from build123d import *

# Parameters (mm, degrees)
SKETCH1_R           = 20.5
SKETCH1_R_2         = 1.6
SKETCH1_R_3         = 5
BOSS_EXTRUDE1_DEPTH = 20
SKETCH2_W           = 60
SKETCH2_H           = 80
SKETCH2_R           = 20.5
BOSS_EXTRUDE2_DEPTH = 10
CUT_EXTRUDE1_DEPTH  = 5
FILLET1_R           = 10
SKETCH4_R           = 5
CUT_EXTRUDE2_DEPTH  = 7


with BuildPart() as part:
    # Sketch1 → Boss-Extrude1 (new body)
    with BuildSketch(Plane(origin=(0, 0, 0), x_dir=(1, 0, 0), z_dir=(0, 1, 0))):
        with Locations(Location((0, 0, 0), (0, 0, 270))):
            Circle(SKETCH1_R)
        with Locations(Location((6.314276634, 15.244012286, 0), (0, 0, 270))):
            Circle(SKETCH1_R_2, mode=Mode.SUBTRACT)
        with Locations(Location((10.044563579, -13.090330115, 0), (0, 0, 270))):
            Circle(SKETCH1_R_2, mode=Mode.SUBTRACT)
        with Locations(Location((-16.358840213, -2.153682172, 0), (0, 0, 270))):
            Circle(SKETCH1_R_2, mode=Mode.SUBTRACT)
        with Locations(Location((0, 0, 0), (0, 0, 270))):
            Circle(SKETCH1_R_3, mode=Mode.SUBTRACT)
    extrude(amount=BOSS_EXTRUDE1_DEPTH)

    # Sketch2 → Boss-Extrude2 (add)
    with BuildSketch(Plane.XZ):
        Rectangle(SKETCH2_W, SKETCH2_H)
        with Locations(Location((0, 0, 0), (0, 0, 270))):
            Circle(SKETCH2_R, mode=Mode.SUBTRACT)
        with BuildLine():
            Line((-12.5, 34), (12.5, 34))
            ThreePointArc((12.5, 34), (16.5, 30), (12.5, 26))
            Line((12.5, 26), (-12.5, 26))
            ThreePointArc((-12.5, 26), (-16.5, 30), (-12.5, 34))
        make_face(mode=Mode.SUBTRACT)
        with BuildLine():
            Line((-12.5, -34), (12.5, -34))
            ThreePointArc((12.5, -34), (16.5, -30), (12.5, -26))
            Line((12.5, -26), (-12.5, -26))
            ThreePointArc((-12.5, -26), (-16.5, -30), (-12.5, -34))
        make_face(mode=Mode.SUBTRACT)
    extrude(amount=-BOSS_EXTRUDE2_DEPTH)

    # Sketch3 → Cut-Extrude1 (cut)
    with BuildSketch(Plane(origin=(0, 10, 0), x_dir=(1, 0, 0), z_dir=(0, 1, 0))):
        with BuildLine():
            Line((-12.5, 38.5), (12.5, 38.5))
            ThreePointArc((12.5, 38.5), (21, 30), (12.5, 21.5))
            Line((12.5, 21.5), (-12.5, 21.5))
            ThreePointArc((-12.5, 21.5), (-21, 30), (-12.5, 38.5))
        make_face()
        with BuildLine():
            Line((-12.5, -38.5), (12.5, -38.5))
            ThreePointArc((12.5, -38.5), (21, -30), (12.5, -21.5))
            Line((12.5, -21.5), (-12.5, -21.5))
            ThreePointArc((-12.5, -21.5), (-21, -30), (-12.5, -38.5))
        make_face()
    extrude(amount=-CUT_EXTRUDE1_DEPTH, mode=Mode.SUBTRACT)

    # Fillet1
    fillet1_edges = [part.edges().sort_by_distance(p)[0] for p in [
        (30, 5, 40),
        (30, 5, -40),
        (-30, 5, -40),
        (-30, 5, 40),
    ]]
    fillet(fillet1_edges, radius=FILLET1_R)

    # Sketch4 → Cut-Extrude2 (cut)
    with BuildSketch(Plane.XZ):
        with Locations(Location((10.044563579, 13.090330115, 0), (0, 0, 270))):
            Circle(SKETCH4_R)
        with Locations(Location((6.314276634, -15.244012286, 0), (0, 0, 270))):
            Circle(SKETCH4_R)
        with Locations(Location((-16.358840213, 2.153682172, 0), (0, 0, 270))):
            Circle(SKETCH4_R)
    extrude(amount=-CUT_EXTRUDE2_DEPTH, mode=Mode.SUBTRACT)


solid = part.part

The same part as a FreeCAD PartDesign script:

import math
import FreeCAD as App
import Part
import Sketcher
from FreeCAD import Vector


def edges_at(feature, points):
    """Names of the edges that pass closest to the given points."""
    edges = feature.Shape.Edges
    near = lambda p: min(range(len(edges)), key=lambda i: edges[i].distToShape(Part.Vertex(*p))[0])
    return sorted({f"Edge{near(p) + 1}" for p in points})

doc = App.newDocument("Part")
body = doc.addObject("PartDesign::Body", "Body")

# Sketch on XZ plane
sketch1 = body.newObject("Sketcher::SketchObject", "Sketch")
sketch1.AttachmentSupport = (doc.getObject("XZ_Plane"), [""])
sketch1.MapMode = "FlatFace"
sketch1.addGeometry(Part.Circle(Vector(0, 0, 0), Vector(0, 0, 1), 20.5), False)
sketch1.addGeometry(Part.Circle(Vector(-16.35884, 2.153682, 0), Vector(0, 0, 1), 1.6), False)
sketch1.addGeometry(Part.Circle(Vector(6.314277, -15.244012, 0), Vector(0, 0, 1), 1.6), False)
sketch1.addGeometry(Part.Circle(Vector(0, 0, 0), Vector(0, 0, 1), 5), False)
sketch1.addGeometry(Part.Circle(Vector(10.044564, 13.09033, 0), Vector(0, 0, 1), 1.6), False)
sketch1.addConstraint(Sketcher.Constraint("Coincident", 0, 3, -1, 1))
sketch1.addConstraint(Sketcher.Constraint("Coincident", 3, 3, -1, 1))
sketch1.addConstraint(Sketcher.Constraint("Equal", 1, 2))
sketch1.addConstraint(Sketcher.Constraint("Equal", 2, 4))
sketch1.addConstraint(Sketcher.Constraint("Diameter", 0, 41.0))
sketch1.addConstraint(Sketcher.Constraint("Diameter", 3, 10.0))
sketch1.addConstraint(Sketcher.Constraint("Diameter", 1, 3.2))
sketch1.addConstraint(Sketcher.Constraint("DistanceX", 1, 3, -1, 1, 16.35884))
sketch1.addConstraint(Sketcher.Constraint("DistanceY", -1, 1, 4, 3, 13.09033))
sketch1.addConstraint(Sketcher.Constraint("DistanceY", -1, 1, 1, 3, 2.153682))
sketch1.addConstraint(Sketcher.Constraint("DistanceX", -1, 1, 2, 3, 6.314277))
sketch1.addConstraint(Sketcher.Constraint("DistanceY", 2, 3, -1, 1, 15.244012))
sketch1.addConstraint(Sketcher.Constraint("DistanceX", -1, 1, 4, 3, 10.044564))
pad1 = body.newObject("PartDesign::Pad", "Pad")
pad1.Profile = sketch1
pad1.Length = 20
pad1.Reversed = True

# Sketch on XZ plane
sketch2 = body.newObject("Sketcher::SketchObject", "Sketch001")
sketch2.AttachmentSupport = (doc.getObject("XZ_Plane"), [""])
sketch2.MapMode = "FlatFace"
sketch2.addGeometry(Part.LineSegment(Vector(-30, 40, 0), Vector(-30, -40, 0)), False)
sketch2.addGeometry(Part.LineSegment(Vector(-30, -40, 0), Vector(30, -40, 0)), False)
sketch2.addGeometry(Part.LineSegment(Vector(30, -40, 0), Vector(30, 40, 0)), False)
sketch2.addGeometry(Part.LineSegment(Vector(30, 40, 0), Vector(-30, 40, 0)), False)
sketch2.addGeometry(Part.LineSegment(Vector(12.5, -34, 0), Vector(-12.5, -34, 0)), False)
sketch2.addGeometry(Part.ArcOfCircle(Part.Circle(Vector(-12.5, -30, 0), Vector(0, 0, 1), 4), math.radians(90), math.radians(270)), False)
sketch2.addGeometry(Part.LineSegment(Vector(-12.5, -26, 0), Vector(12.5, -26, 0)), False)
sketch2.addGeometry(Part.ArcOfCircle(Part.Circle(Vector(12.5, -30, 0), Vector(0, 0, 1), 4), math.radians(-90), math.radians(90)), False)
sketch2.addGeometry(Part.Circle(Vector(0, 0, 0), Vector(0, 0, 1), 20.5), False)
sketch2.addGeometry(Part.ArcOfCircle(Part.Circle(Vector(-12.5, 30, 0), Vector(0, 0, 1), 4), math.radians(90), math.radians(270)), False)
sketch2.addGeometry(Part.LineSegment(Vector(-12.5, 34, 0), Vector(12.5, 34, 0)), False)
sketch2.addGeometry(Part.ArcOfCircle(Part.Circle(Vector(12.5, 30, 0), Vector(0, 0, 1), 4), math.radians(-90), math.radians(90)), False)
sketch2.addGeometry(Part.LineSegment(Vector(12.5, 26, 0), Vector(-12.5, 26, 0)), False)
sketch2.addConstraint(Sketcher.Constraint("Coincident", 0, 2, 1, 1))
sketch2.addConstraint(Sketcher.Constraint("Coincident", 1, 2, 2, 1))
sketch2.addConstraint(Sketcher.Constraint("Coincident", 2, 2, 3, 1))
sketch2.addConstraint(Sketcher.Constraint("Coincident", 3, 2, 0, 1))
sketch2.addConstraint(Sketcher.Constraint("Tangent", 4, 2, 5, 2))
sketch2.addConstraint(Sketcher.Constraint("Tangent", 5, 1, 6, 1))
sketch2.addConstraint(Sketcher.Constraint("Tangent", 6, 2, 7, 2))
sketch2.addConstraint(Sketcher.Constraint("Tangent", 7, 1, 4, 1))
sketch2.addConstraint(Sketcher.Constraint("Tangent", 9, 1, 10, 1))
sketch2.addConstraint(Sketcher.Constraint("Tangent", 10, 2, 11, 2))
sketch2.addConstraint(Sketcher.Constraint("Tangent", 11, 1, 12, 1))
sketch2.addConstraint(Sketcher.Constraint("Tangent", 12, 2, 9, 2))
sketch2.addConstraint(Sketcher.Constraint("Vertical", 0))
sketch2.addConstraint(Sketcher.Constraint("Horizontal", 1))
sketch2.addConstraint(Sketcher.Constraint("Vertical", 2))
sketch2.addConstraint(Sketcher.Constraint("Horizontal", 3))
sketch2.addConstraint(Sketcher.Constraint("Horizontal", 4))
sketch2.addConstraint(Sketcher.Constraint("Horizontal", 6))
sketch2.addConstraint(Sketcher.Constraint("Horizontal", 10))
sketch2.addConstraint(Sketcher.Constraint("Horizontal", 12))
sketch2.addConstraint(Sketcher.Constraint("Coincident", 8, 3, -1, 1))
sketch2.addConstraint(Sketcher.Constraint("Equal", 7, 9))
sketch2.addConstraint(Sketcher.Constraint("Symmetric", 7, 3, 9, 3, -1, 1))
sketch2.addConstraint(Sketcher.Constraint("Symmetric", 0, 2, 2, 2, -1, 1))
sketch2.addConstraint(Sketcher.Constraint("Vertical", 5, 3, 9, 3))
sketch2.addConstraint(Sketcher.Constraint("Vertical", 7, 3, 11, 3))
sketch2.addConstraint(Sketcher.Constraint("Diameter", 8, 41.0))
sketch2.addConstraint(Sketcher.Constraint("Radius", 5, 4.0))
sketch2.addConstraint(Sketcher.Constraint("DistanceX", 1, 1, 1, 2, 60.0))
sketch2.addConstraint(Sketcher.Constraint("DistanceX", 4, 2, 4, 1, 25.0))
sketch2.addConstraint(Sketcher.Constraint("DistanceY", 0, 2, 0, 1, 80.0))
sketch2.addConstraint(Sketcher.Constraint("DistanceY", 5, 3, -1, 1, 30.0))
pad2 = body.newObject("PartDesign::Pad", "Pad001")
pad2.Profile = sketch2
pad2.Length = 10
pad2.Reversed = True

# Sketch on XZ plane
sketch3 = body.newObject("Sketcher::SketchObject", "Sketch002")
sketch3.AttachmentSupport = (doc.getObject("XZ_Plane"), [""])
sketch3.MapMode = "FlatFace"
sketch3.AttachmentOffset = App.Placement(Vector(0, 0, -10), App.Rotation())
sketch3.addGeometry(Part.LineSegment(Vector(12.5, -38.5, 0), Vector(-12.5, -38.5, 0)), False)
sketch3.addGeometry(Part.ArcOfCircle(Part.Circle(Vector(-12.5, -30, 0), Vector(0, 0, 1), 8.5), math.radians(90), math.radians(270)), False)
sketch3.addGeometry(Part.LineSegment(Vector(-12.5, -21.5, 0), Vector(12.5, -21.5, 0)), False)
sketch3.addGeometry(Part.ArcOfCircle(Part.Circle(Vector(12.5, -30, 0), Vector(0, 0, 1), 8.5), math.radians(-90), math.radians(90)), False)
sketch3.addGeometry(Part.LineSegment(Vector(-12.5, 38.5, 0), Vector(12.5, 38.5, 0)), False)
sketch3.addGeometry(Part.ArcOfCircle(Part.Circle(Vector(12.5, 30, 0), Vector(0, 0, 1), 8.5), math.radians(-90), math.radians(90)), False)
sketch3.addGeometry(Part.LineSegment(Vector(12.5, 21.5, 0), Vector(-12.5, 21.5, 0)), False)
sketch3.addGeometry(Part.ArcOfCircle(Part.Circle(Vector(-12.5, 30, 0), Vector(0, 0, 1), 8.5), math.radians(90), math.radians(270)), False)
sketch3.addConstraint(Sketcher.Constraint("Tangent", 0, 2, 1, 2))
sketch3.addConstraint(Sketcher.Constraint("Tangent", 1, 1, 2, 1))
sketch3.addConstraint(Sketcher.Constraint("Tangent", 2, 2, 3, 2))
sketch3.addConstraint(Sketcher.Constraint("Tangent", 3, 1, 0, 1))
sketch3.addConstraint(Sketcher.Constraint("Tangent", 4, 2, 5, 2))
sketch3.addConstraint(Sketcher.Constraint("Tangent", 5, 1, 6, 1))
sketch3.addConstraint(Sketcher.Constraint("Tangent", 6, 2, 7, 2))
sketch3.addConstraint(Sketcher.Constraint("Tangent", 7, 1, 4, 1))
sketch3.addConstraint(Sketcher.Constraint("Horizontal", 0))
sketch3.addConstraint(Sketcher.Constraint("Horizontal", 2))
sketch3.addConstraint(Sketcher.Constraint("Horizontal", 4))
sketch3.addConstraint(Sketcher.Constraint("Horizontal", 6))
sketch3.addConstraint(Sketcher.Constraint("Equal", 3, 5))
sketch3.addConstraint(Sketcher.Constraint("Symmetric", 1, 3, 5, 3, -1, 1))
sketch3.addConstraint(Sketcher.Constraint("Vertical", 3, 3, 5, 3))
sketch3.addConstraint(Sketcher.Constraint("Vertical", 1, 3, 7, 3))
sketch3.addConstraint(Sketcher.Constraint("Radius", 1, 8.5))
sketch3.addConstraint(Sketcher.Constraint("DistanceX", 0, 2, 0, 1, 25.0))
sketch3.addConstraint(Sketcher.Constraint("DistanceY", 1, 3, -1, 1, 30.0))
pocket1 = body.newObject("PartDesign::Pocket", "Pocket")
pocket1.Profile = sketch3
pocket1.Length = 5
pocket1.Reversed = True
doc.recompute()

fillet = body.newObject("PartDesign::Fillet", "Fillet")
fillet.Base = (pocket1, edges_at(pocket1, [
    (30, 5, 40),
    (30, 5, -40),
    (-30, 5, -40),
    (-30, 5, 40),
]))
fillet.Radius = 10

# Sketch on XZ plane
sketch4 = body.newObject("Sketcher::SketchObject", "Sketch003")
sketch4.AttachmentSupport = (doc.getObject("XZ_Plane"), [""])
sketch4.MapMode = "FlatFace"
sketch4.addGeometry(Part.Circle(Vector(10.044564, 13.09033, 0), Vector(0, 0, 1), 5), False)
sketch4.addGeometry(Part.Circle(Vector(6.314277, -15.244012, 0), Vector(0, 0, 1), 5), False)
sketch4.addGeometry(Part.Circle(Vector(-16.35884, 2.153682, 0), Vector(0, 0, 1), 5), False)
sketch4.addConstraint(Sketcher.Constraint("Equal", 0, 1))
sketch4.addConstraint(Sketcher.Constraint("Equal", 1, 2))
sketch4.addConstraint(Sketcher.Constraint("Diameter", 0, 10.0))
sketch4.addConstraint(Sketcher.Constraint("DistanceY", -1, 1, 0, 3, 13.09033))
sketch4.addConstraint(Sketcher.Constraint("DistanceX", 2, 3, -1, 1, 16.35884))
sketch4.addConstraint(Sketcher.Constraint("DistanceX", -1, 1, 0, 3, 10.044564))
sketch4.addConstraint(Sketcher.Constraint("DistanceX", -1, 1, 1, 3, 6.314277))
sketch4.addConstraint(Sketcher.Constraint("DistanceY", 1, 3, -1, 1, 15.244012))
sketch4.addConstraint(Sketcher.Constraint("DistanceY", -1, 1, 2, 3, 2.153682))
pocket2 = body.newObject("PartDesign::Pocket", "Pocket001")
pocket2.Profile = sketch4
pocket2.Length = 7

doc.recompute()
